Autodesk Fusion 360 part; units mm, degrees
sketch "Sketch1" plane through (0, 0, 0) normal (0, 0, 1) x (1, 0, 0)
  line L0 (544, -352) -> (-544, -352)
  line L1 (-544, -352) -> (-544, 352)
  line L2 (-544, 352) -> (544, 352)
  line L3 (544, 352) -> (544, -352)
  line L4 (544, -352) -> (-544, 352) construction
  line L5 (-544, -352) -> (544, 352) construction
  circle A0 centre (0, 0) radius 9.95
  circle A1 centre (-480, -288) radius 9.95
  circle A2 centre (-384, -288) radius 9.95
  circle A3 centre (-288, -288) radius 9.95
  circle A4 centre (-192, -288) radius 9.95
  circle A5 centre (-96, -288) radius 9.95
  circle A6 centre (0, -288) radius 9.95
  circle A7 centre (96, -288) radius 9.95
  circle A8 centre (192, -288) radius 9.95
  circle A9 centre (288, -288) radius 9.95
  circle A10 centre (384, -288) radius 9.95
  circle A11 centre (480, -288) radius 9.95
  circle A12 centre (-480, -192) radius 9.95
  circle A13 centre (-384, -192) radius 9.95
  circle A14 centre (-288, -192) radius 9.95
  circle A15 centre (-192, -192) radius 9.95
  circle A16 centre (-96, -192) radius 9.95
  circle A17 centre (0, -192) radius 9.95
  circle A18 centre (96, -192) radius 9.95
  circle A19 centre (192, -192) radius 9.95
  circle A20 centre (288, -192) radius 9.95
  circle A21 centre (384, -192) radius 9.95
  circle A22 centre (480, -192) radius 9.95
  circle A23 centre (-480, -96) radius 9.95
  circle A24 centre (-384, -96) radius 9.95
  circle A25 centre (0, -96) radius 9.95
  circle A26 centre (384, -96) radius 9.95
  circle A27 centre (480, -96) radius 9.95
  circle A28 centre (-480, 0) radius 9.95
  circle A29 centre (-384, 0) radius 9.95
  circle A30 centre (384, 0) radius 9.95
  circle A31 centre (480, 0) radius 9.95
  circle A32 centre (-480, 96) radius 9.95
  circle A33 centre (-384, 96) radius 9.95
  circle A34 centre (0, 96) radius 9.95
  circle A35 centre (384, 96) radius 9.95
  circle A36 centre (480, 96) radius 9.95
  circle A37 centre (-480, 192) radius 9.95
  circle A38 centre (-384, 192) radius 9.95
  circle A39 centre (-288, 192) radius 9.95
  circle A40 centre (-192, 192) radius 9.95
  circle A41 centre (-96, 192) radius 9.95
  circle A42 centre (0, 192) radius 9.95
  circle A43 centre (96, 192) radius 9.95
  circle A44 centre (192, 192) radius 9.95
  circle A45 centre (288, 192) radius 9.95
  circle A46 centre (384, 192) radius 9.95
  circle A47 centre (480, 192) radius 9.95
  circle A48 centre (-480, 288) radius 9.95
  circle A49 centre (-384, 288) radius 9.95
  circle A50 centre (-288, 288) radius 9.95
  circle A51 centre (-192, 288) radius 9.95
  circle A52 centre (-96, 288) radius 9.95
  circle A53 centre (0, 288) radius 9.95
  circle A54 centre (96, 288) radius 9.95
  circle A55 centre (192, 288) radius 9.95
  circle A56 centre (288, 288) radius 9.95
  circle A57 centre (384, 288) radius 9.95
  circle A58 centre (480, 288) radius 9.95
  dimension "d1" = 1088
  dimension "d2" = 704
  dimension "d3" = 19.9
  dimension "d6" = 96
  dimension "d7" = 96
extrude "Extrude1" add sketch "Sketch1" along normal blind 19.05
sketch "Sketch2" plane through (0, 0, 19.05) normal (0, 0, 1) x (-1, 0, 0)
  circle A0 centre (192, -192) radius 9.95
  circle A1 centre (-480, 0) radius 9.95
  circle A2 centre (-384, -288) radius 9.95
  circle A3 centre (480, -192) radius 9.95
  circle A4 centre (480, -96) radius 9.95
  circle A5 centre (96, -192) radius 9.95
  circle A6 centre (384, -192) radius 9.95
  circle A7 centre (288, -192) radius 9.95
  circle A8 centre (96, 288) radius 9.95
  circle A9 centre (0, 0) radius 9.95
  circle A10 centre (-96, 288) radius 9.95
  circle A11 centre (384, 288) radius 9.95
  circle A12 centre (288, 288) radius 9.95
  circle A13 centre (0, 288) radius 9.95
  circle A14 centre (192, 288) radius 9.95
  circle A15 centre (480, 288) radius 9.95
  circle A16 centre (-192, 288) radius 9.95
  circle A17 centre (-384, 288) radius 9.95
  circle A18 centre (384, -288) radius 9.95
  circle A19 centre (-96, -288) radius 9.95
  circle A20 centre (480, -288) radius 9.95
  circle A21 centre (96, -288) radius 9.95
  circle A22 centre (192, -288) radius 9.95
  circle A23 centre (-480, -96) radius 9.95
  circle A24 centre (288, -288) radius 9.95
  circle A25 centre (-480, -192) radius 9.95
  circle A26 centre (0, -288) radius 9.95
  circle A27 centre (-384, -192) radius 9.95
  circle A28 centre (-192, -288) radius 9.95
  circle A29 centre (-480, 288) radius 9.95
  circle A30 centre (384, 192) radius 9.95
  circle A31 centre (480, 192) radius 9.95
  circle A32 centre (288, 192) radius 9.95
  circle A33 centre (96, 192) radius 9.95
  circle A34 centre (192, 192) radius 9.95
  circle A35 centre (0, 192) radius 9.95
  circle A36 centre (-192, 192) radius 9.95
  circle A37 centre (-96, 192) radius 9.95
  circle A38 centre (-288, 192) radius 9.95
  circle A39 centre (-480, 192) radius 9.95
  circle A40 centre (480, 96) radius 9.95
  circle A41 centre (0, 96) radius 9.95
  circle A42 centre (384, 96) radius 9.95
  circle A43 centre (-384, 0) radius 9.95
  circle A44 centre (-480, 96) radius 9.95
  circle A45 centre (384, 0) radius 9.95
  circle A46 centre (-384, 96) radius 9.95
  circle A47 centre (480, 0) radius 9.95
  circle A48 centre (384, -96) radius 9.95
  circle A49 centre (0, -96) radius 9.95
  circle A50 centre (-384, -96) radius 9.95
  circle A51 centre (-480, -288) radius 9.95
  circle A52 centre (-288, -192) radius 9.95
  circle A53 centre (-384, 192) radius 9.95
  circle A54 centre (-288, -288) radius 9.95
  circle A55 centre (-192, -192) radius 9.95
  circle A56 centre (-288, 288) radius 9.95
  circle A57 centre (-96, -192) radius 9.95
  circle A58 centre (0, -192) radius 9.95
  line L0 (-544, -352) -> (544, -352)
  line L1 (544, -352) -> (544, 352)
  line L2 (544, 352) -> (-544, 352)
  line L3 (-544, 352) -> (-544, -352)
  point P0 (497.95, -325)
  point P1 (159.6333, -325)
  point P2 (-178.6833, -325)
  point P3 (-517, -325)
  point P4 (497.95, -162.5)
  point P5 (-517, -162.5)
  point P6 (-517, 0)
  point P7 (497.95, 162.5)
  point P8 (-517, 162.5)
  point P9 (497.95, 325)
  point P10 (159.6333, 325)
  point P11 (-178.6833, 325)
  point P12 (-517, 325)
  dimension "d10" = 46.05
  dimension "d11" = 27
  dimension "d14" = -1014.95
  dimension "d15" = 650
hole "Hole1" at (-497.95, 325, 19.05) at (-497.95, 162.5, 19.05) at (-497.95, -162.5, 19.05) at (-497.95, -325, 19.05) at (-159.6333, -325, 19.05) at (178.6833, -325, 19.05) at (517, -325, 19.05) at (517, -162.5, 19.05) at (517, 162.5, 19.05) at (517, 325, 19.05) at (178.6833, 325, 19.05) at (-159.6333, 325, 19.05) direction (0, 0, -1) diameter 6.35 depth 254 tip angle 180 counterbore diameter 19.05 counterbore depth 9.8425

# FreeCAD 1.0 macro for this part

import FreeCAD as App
import Part
import Sketcher
from FreeCAD import Vector
Q = App.Units.Quantity

doc = App.newDocument("Part")
params = doc.addObject("Spreadsheet::Sheet", "Params")
for row, (alias, value) in enumerate([
    ("sketch1_diameter", "19.9 mm"),
    ("sketch1_width", "1088 mm"),
    ("sketch1_height", "704 mm"),
    ("pad1_length", "19.05 mm"),
    ("sketch2_diameter", "6.35 mm"),
    ("hole_diameter", "6.35 mm"),
    ("hole_depth", "254 mm"),
    ("hole_cbore_diameter", "19.05 mm"),
    ("hole_cbore_depth", "9.8425 mm"),
], start=1):
    params.set(f"A{row}", alias)
    params.set(f"B{row}", "=" + value)
    params.setAlias(f"B{row}", alias)

body = doc.addObject("PartDesign::Body", "Body")

sketch1 = body.newObject("Sketcher::SketchObject", "Sketch")
sketch1.AttachmentSupport = (doc.getObject("XY_Plane"), [""])
sketch1.MapMode = "FlatFace"
sketch1.addGeometry([
    Part.LineSegment(Vector(-544, -352, 0), Vector(544, -352, 0)),
    Part.LineSegment(Vector(544, -352, 0), Vector(544, 352, 0)),
    Part.LineSegment(Vector(544, 352, 0), Vector(-544, 352, 0)),
    Part.LineSegment(Vector(-544, 352, 0), Vector(-544, -352, 0)),
    Part.Circle(Vector(-480, -288, 0), Vector(0, 0, 1), 10),
    Part.Circle(Vector(-384, -288, 0), Vector(0, 0, 1), 10),
    Part.Circle(Vector(-288, -288, 0), Vector(0, 0, 1), 10),
    Part.Circle(Vector(-480, -192, 0), Vector(0, 0, 1), 10),
    Part.Circle(Vector(-384, -192, 0), Vector(0, 0, 1), 10),
    Part.Circle(Vector(-288, -192, 0), Vector(0, 0, 1), 10),
    Part.Circle(Vector(-192, -288, 0), Vector(0, 0, 1), 10),
    Part.Circle(Vector(-96, -288, 0), Vector(0, 0, 1), 10),
    Part.Circle(Vector(-192, -192, 0), Vector(0, 0, 1), 10),
    Part.Circle(Vector(-96, -192, 0), Vector(0, 0, 1), 10),
    Part.Circle(Vector(-480, -96, 0), Vector(0, 0, 1), 10),
    Part.Circle(Vector(-384, -96, 0), Vector(0, 0, 1), 10),
    Part.Circle(Vector(0, -288, 0), Vector(0, 0, 1), 10),
    Part.Circle(Vector(96, -288, 0), Vector(0, 0, 1), 10),
    Part.Circle(Vector(192, -288, 0), Vector(0, 0, 1), 10),
    Part.Circle(Vector(0, -192, 0), Vector(0, 0, 1), 10),
    Part.Circle(Vector(96, -192, 0), Vector(0, 0, 1), 10),
    Part.Circle(Vector(192, -192, 0), Vector(0, 0, 1), 10),
    Part.Circle(Vector(288, -288, 0), Vector(0, 0, 1), 10),
    Part.Circle(Vector(384, -288, 0), Vector(0, 0, 1), 10),
    Part.Circle(Vector(480, -288, 0), Vector(0, 0, 1), 10),
    Part.Circle(Vector(288, -192, 0), Vector(0, 0, 1), 10),
    Part.Circle(Vector(384, -192, 0), Vector(0, 0, 1), 10),
    Part.Circle(Vector(480, -192, 0), Vector(0, 0, 1), 10),
    Part.Circle(Vector(0, -96, 0), Vector(0, 0, 1), 10),
    Part.Circle(Vector(384, -96, 0), Vector(0, 0, 1), 10),
    Part.Circle(Vector(480, -96, 0), Vector(0, 0, 1), 10),
    Part.Circle(Vector(-480, 0, 0), Vector(0, 0, 1), 10),
    Part.Circle(Vector(-384, 0, 0), Vector(0, 0, 1), 10),
    Part.Circle(Vector(-480, 96, 0), Vector(0, 0, 1), 10),
    Part.Circle(Vector(-384, 96, 0), Vector(0, 0, 1), 10),
    Part.Circle(Vector(-480, 192, 0), Vector(0, 0, 1), 10),
    Part.Circle(Vector(-384, 192, 0), Vector(0, 0, 1), 10),
    Part.Circle(Vector(-288, 192, 0), Vector(0, 0, 1), 10),
    Part.Circle(Vector(-480, 288, 0), Vector(0, 0, 1), 10),
    Part.Circle(Vector(-384, 288, 0), Vector(0, 0, 1), 10),
    Part.Circle(Vector(-288, 288, 0), Vector(0, 0, 1), 10),
    Part.Circle(Vector(-192, 192, 0), Vector(0, 0, 1), 10),
    Part.Circle(Vector(-96, 192, 0), Vector(0, 0, 1), 10),
    Part.Circle(Vector(-192, 288, 0), Vector(0, 0, 1), 10),
    Part.Circle(Vector(-96, 288, 0), Vector(0, 0, 1), 10),
    Part.Circle(Vector(0, 0, 0), Vector(0, 0, 1), 10),
    Part.Circle(Vector(0, 96, 0), Vector(0, 0, 1), 10),
    Part.Circle(Vector(384, 0, 0), Vector(0, 0, 1), 10),
    Part.Circle(Vector(480, 0, 0), Vector(0, 0, 1), 10),
    Part.Circle(Vector(384, 96, 0), Vector(0, 0, 1), 10),
    Part.Circle(Vector(480, 96, 0), Vector(0, 0, 1), 10),
    Part.Circle(Vector(0, 192, 0), Vector(0, 0, 1), 10),
    Part.Circle(Vector(96, 192, 0), Vector(0, 0, 1), 10),
    Part.Circle(Vector(192, 192, 0), Vector(0, 0, 1), 10),
    Part.Circle(Vector(0, 288, 0), Vector(0, 0, 1), 10),
    Part.Circle(Vector(96, 288, 0), Vector(0, 0, 1), 10),
    Part.Circle(Vector(192, 288, 0), Vector(0, 0, 1), 10),
    Part.Circle(Vector(288, 192, 0), Vector(0, 0, 1), 10),
    Part.Circle(Vector(384, 192, 0), Vector(0, 0, 1), 10),
    Part.Circle(Vector(480, 192, 0), Vector(0, 0, 1), 10),
    Part.Circle(Vector(288, 288, 0), Vector(0, 0, 1), 10),
    Part.Circle(Vector(384, 288, 0), Vector(0, 0, 1), 10),
    Part.Circle(Vector(480, 288, 0), Vector(0, 0, 1), 10),
], False)
sketch1.addConstraint([
    Sketcher.Constraint("Coincident", 0, 2, 1, 1),
    Sketcher.Constraint("Coincident", 1, 2, 2, 1),
    Sketcher.Constraint("Coincident", 2, 2, 3, 1),
    Sketcher.Constraint("Coincident", 3, 2, 0, 1),
    Sketcher.Constraint("Horizontal", 0),
    Sketcher.Constraint("Vertical", 1),
    Sketcher.Constraint("Horizontal", 2),
    Sketcher.Constraint("Vertical", 3),
    Sketcher.Constraint("Coincident", 45, 3, -1, 1),
    Sketcher.Constraint("Equal", 4, 5),
    Sketcher.Constraint("Equal", 5, 6),
    Sketcher.Constraint("Equal", 6, 7),
    Sketcher.Constraint("Equal", 7, 8),
    Sketcher.Constraint("Equal", 8, 9),
    Sketcher.Constraint("Equal", 9, 10),
    Sketcher.Constraint("Equal", 10, 11),
    Sketcher.Constraint("Equal", 11, 12),
    Sketcher.Constraint("Equal", 12, 13),
    Sketcher.Constraint("Equal", 13, 14),
    Sketcher.Constraint("Equal", 14, 15),
    Sketcher.Constraint("Equal", 15, 16),
    Sketcher.Constraint("Equal", 16, 17),
    Sketcher.Constraint("Equal", 17, 18),
    Sketcher.Constraint("Equal", 18, 19),
    Sketcher.Constraint("Equal", 19, 20),
    Sketcher.Constraint("Equal", 20, 21),
    Sketcher.Constraint("Equal", 21, 22),
    Sketcher.Constraint("Equal", 22, 23),
    Sketcher.Constraint("Equal", 23, 24),
    Sketcher.Constraint("Equal", 24, 25),
    Sketcher.Constraint("Equal", 25, 26),
    Sketcher.Constraint("Equal", 26, 27),
    Sketcher.Constraint("Equal", 27, 28),
    Sketcher.Constraint("Equal", 28, 29),
    Sketcher.Constraint("Equal", 29, 30),
    Sketcher.Constraint("Equal", 30, 31),
    Sketcher.Constraint("Equal", 31, 32),
    Sketcher.Constraint("Equal", 32, 33),
    Sketcher.Constraint("Equal", 33, 34),
    Sketcher.Constraint("Equal", 34, 35),
    Sketcher.Constraint("Equal", 35, 36),
    Sketcher.Constraint("Equal", 36, 37),
    Sketcher.Constraint("Equal", 37, 38),
    Sketcher.Constraint("Equal", 38, 39),
    Sketcher.Constraint("Equal", 39, 40),
    Sketcher.Constraint("Equal", 40, 41),
    Sketcher.Constraint("Equal", 41, 42),
    Sketcher.Constraint("Equal", 42, 43),
    Sketcher.Constraint("Equal", 43, 44),
    Sketcher.Constraint("Equal", 44, 45),
    Sketcher.Constraint("Equal", 45, 46),
    Sketcher.Constraint("Equal", 46, 47),
    Sketcher.Constraint("Equal", 47, 48),
    Sketcher.Constraint("Equal", 48, 49),
    Sketcher.Constraint("Equal", 49, 50),
    Sketcher.Constraint("Equal", 50, 51),
    Sketcher.Constraint("Equal", 51, 52),
    Sketcher.Constraint("Equal", 52, 53),
    Sketcher.Constraint("Equal", 53, 54),
    Sketcher.Constraint("Equal", 54, 55),
    Sketcher.Constraint("Equal", 55, 56),
    Sketcher.Constraint("Equal", 56, 57),
    Sketcher.Constraint("Equal", 57, 58),
    Sketcher.Constraint("Equal", 58, 59),
    Sketcher.Constraint("Equal", 59, 60),
    Sketcher.Constraint("Equal", 60, 61),
    Sketcher.Constraint("Equal", 61, 62),
    Sketcher.Constraint("Symmetric", 30, 3, 33, 3, -1, 1),
    Sketcher.Constraint("Symmetric", 29, 3, 34, 3, -1, 1),
    Sketcher.Constraint("Symmetric", 27, 3, 35, 3, -1, 1),
    Sketcher.Constraint("Symmetric", 26, 3, 36, 3, -1, 1),
    Sketcher.Constraint("Symmetric", 25, 3, 37, 3, -1, 1),
    Sketcher.Constraint("Symmetric", 24, 3, 38, 3, -1, 1),
    Sketcher.Constraint("Symmetric", 23, 3, 39, 3, -1, 1),
    Sketcher.Constraint("Symmetric", 22, 3, 40, 3, -1, 1),
    Sketcher.Constraint("Symmetric", 21, 3, 41, 3, -1, 1),
    Sketcher.Constraint("Symmetric", 20, 3, 42, 3, -1, 1),
    Sketcher.Constraint("Symmetric", 18, 3, 43, 3, -1, 1),
    Sketcher.Constraint("Symmetric", 17, 3, 44, 3, -1, 1),
    Sketcher.Constraint("Symmetric", 28, 3, 46, 3, -1, 1),
    Sketcher.Constraint("Symmetric", 32, 3, 47, 3, -1, 1),
    Sketcher.Constraint("Symmetric", 31, 3, 48, 3, -1, 1),
    Sketcher.Constraint("Symmetric", 15, 3, 49, 3, -1, 1),
    Sketcher.Constraint("Symmetric", 14, 3, 50, 3, -1, 1),
    Sketcher.Constraint("Symmetric", 19, 3, 51, 3, -1, 1),
    Sketcher.Constraint("Symmetric", 13, 3, 52, 3, -1, 1),
    Sketcher.Constraint("Symmetric", 12, 3, 53, 3, -1, 1),
    Sketcher.Constraint("Symmetric", 16, 3, 54, 3, -1, 1),
    Sketcher.Constraint("Symmetric", 11, 3, 55, 3, -1, 1),
    Sketcher.Constraint("Symmetric", 10, 3, 56, 3, -1, 1),
    Sketcher.Constraint("Symmetric", 9, 3, 57, 3, -1, 1),
    Sketcher.Constraint("Symmetric", 8, 3, 58, 3, -1, 1),
    Sketcher.Constraint("Symmetric", 7, 3, 59, 3, -1, 1),
    Sketcher.Constraint("Symmetric", 6, 3, 60, 3, -1, 1),
    Sketcher.Constraint("Symmetric", 5, 3, 61, 3, -1, 1),
    Sketcher.Constraint("Symmetric", 4, 3, 62, 3, -1, 1),
    Sketcher.Constraint("Symmetric", 0, 2, 2, 2, -1, 1),
    Sketcher.Constraint("Symmetric", 11, 3, 17, 3, -2),
    Sketcher.Constraint("Symmetric", 10, 3, 18, 3, -2),
    Sketcher.Constraint("Symmetric", 13, 3, 20, 3, -2),
    Sketcher.Constraint("Symmetric", 12, 3, 21, 3, -2),
    Sketcher.Constraint("Symmetric", 6, 3, 22, 3, -2),
    Sketcher.Constraint("Symmetric", 5, 3, 23, 3, -2),
    Sketcher.Constraint("Symmetric", 4, 3, 24, 3, -2),
    Sketcher.Constraint("Symmetric", 9, 3, 25, 3, -2),
    Sketcher.Constraint("Symmetric", 8, 3, 26, 3, -2),
    Sketcher.Constraint("Symmetric", 7, 3, 27, 3, -2),
    Sketcher.Constraint("Symmetric", 15, 3, 29, 3, -2),
    Sketcher.Constraint("Symmetric", 14, 3, 30, 3, -2),
    Sketcher.Constraint("PointOnObject", 16, 3, -2),
    Sketcher.Constraint("PointOnObject", 19, 3, -2),
    Sketcher.Constraint("PointOnObject", 28, 3, -2),
    Sketcher.Constraint("PointOnObject", 31, 3, -1),
    Sketcher.Constraint("PointOnObject", 32, 3, -1),
    Sketcher.Constraint("Horizontal", 4, 3, 5, 3),
    Sketcher.Constraint("Horizontal", 5, 3, 6, 3),
    Sketcher.Constraint("Horizontal", 7, 3, 8, 3),
    Sketcher.Constraint("Horizontal", 8, 3, 9, 3),
    Sketcher.Constraint("Horizontal", 6, 3, 10, 3),
    Sketcher.Constraint("Horizontal", 10, 3, 11, 3),
    Sketcher.Constraint("Horizontal", 9, 3, 12, 3),
    Sketcher.Constraint("Horizontal", 12, 3, 13, 3),
    Sketcher.Constraint("Horizontal", 14, 3, 15, 3),
    Sketcher.Constraint("Horizontal", 11, 3, 16, 3),
    Sketcher.Constraint("Horizontal", 13, 3, 19, 3),
    Sketcher.Constraint("Horizontal", 15, 3, 28, 3),
    Sketcher.Constraint("Vertical", 4, 3, 7, 3),
    Sketcher.Constraint("Vertical", 5, 3, 8, 3),
    Sketcher.Constraint("Vertical", 6, 3, 9, 3),
    Sketcher.Constraint("Vertical", 10, 3, 12, 3),
    Sketcher.Constraint("Vertical", 11, 3, 13, 3),
    Sketcher.Constraint("Vertical", 7, 3, 14, 3),
    Sketcher.Constraint("Vertical", 8, 3, 15, 3),
    Sketcher.Constraint("Vertical", 14, 3, 31, 3),
    Sketcher.Constraint("Vertical", 15, 3, 32, 3),
    Sketcher.Constraint("Diameter", 4, Q("19.9 mm")),
    Sketcher.Constraint("DistanceX", 0, 1, 0, 2, Q("1088 mm")),
    Sketcher.Constraint("DistanceY", 1, 1, 1, 2, Q("704 mm")),
    Sketcher.Constraint("DistanceX", 11, 3, -1, 1, Q("96 mm")),
    Sketcher.Constraint("DistanceY", 14, 3, -1, 1, Q("96 mm")),
    Sketcher.Constraint("DistanceX", 4, 3, -1, 1, Q("480 mm")),
    Sketcher.Constraint("DistanceY", 4, 3, -1, 1, Q("288 mm")),
    Sketcher.Constraint("DistanceX", 5, 3, -1, 1, Q("384 mm")),
    Sketcher.Constraint("DistanceX", 6, 3, -1, 1, Q("288 mm")),
    Sketcher.Constraint("DistanceY", 7, 3, -1, 1, Q("192 mm")),
    Sketcher.Constraint("DistanceX", 10, 3, -1, 1, Q("192 mm")),
])
sketch1.setExpression("Constraints[135]", "Params.sketch1_diameter")
sketch1.setExpression("Constraints[136]", "Params.sketch1_width")
sketch1.setExpression("Constraints[137]", "Params.sketch1_height")
pad1 = body.newObject("PartDesign::Pad", "Pad")
pad1.Profile = sketch1
pad1.setExpression("Length", "Params.pad1_length")

sketch2 = body.newObject("Sketcher::SketchObject", "Sketch001")
sketch2.AttachmentSupport = (doc.getObject("XY_Plane"), [""])
sketch2.MapMode = "FlatFace"
sketch2.AttachmentOffset = App.Placement(Vector(0, 0, 19.05), App.Rotation())
sketch2.addGeometry([
    Part.Circle(Vector(-497.9, 325, 0), Vector(0, 0, 1), 3.2),
    Part.Circle(Vector(-497.9, 162.5, 0), Vector(0, 0, 1), 3.2),
    Part.Circle(Vector(-497.9, -162.5, 0), Vector(0, 0, 1), 3.2),
    Part.Circle(Vector(-497.9, -325, 0), Vector(0, 0, 1), 3.2),
    Part.Circle(Vector(-159.6, -325, 0), Vector(0, 0, 1), 3.2),
    Part.Circle(Vector(178.7, -325, 0), Vector(0, 0, 1), 3.2),
    Part.Circle(Vector(517, -325, 0), Vector(0, 0, 1), 3.2),
    Part.Circle(Vector(517, -162.5, 0), Vector(0, 0, 1), 3.2),
    Part.Circle(Vector(517, 162.5, 0), Vector(0, 0, 1), 3.2),
    Part.Circle(Vector(517, 325, 0), Vector(0, 0, 1), 3.2),
    Part.Circle(Vector(178.7, 325, 0), Vector(0, 0, 1), 3.2),
    Part.Circle(Vector(-159.6, 325, 0), Vector(0, 0, 1), 3.2),
], False)
sketch2.addConstraint([
    Sketcher.Constraint("Equal", 0, 1),
    Sketcher.Constraint("Equal", 1, 2),
    Sketcher.Constraint("Equal", 2, 3),
    Sketcher.Constraint("Equal", 3, 4),
    Sketcher.Constraint("Equal", 4, 5),
    Sketcher.Constraint("Equal", 5, 6),
    Sketcher.Constraint("Equal", 6, 7),
    Sketcher.Constraint("Equal", 7, 8),
    Sketcher.Constraint("Equal", 8, 9),
    Sketcher.Constraint("Equal", 9, 10),
    Sketcher.Constraint("Equal", 10, 11),
    Sketcher.Constraint("Symmetric", 1, 3, 2, 3, -1),
    Sketcher.Constraint("Symmetric", 0, 3, 3, 3, -1),
    Sketcher.Constraint("Symmetric", 7, 3, 8, 3, -1),
    Sketcher.Constraint("Symmetric", 6, 3, 9, 3, -1),
    Sketcher.Constraint("Symmetric", 5, 3, 10, 3, -1),
    Sketcher.Constraint("Symmetric", 4, 3, 11, 3, -1),
    Sketcher.Constraint("Horizontal", 3, 3, 4, 3),
    Sketcher.Constraint("Horizontal", 4, 3, 5, 3),
    Sketcher.Constraint("Horizontal", 5, 3, 6, 3),
    Sketcher.Constraint("Horizontal", 2, 3, 7, 3),
    Sketcher.Constraint("Vertical", 0, 3, 1, 3),
    Sketcher.Constraint("Vertical", 6, 3, 7, 3),
    Sketcher.Constraint("Diameter", 0, Q("6.35 mm")),
    Sketcher.Constraint("DistanceY", -1, 1, 0, 3, Q("325 mm")),
    Sketcher.Constraint("DistanceX", -1, 1, 6, 3, Q("517 mm")),
    Sketcher.Constraint("DistanceY", 2, 3, 1, 3, Q("325 mm")),
    Sketcher.Constraint("DistanceX", 0, 3, -1, 1, Q("497.95 mm")),
    Sketcher.Constraint("DistanceX", 4, 3, -1, 1, Q("159.6333 mm")),
    Sketcher.Constraint("DistanceX", -1, 1, 5, 3, Q("178.6833 mm")),
])
sketch2.setExpression("Constraints[23]", "Params.sketch2_diameter")
doc.recompute()
hole = body.newObject("PartDesign::Hole", "Hole")
hole.Profile = sketch2
hole.ThreadType = "None"
hole.setExpression("Diameter", "Params.hole_diameter")
hole.DepthType = "Dimension"
hole.setExpression("Depth", "Params.hole_depth")
hole.DrillPoint = "Flat"
hole.HoleCutType = "Counterbore"
hole.setExpression("HoleCutDiameter", "Params.hole_cbore_diameter")
hole.setExpression("HoleCutDepth", "Params.hole_cbore_depth")

doc.recompute()
